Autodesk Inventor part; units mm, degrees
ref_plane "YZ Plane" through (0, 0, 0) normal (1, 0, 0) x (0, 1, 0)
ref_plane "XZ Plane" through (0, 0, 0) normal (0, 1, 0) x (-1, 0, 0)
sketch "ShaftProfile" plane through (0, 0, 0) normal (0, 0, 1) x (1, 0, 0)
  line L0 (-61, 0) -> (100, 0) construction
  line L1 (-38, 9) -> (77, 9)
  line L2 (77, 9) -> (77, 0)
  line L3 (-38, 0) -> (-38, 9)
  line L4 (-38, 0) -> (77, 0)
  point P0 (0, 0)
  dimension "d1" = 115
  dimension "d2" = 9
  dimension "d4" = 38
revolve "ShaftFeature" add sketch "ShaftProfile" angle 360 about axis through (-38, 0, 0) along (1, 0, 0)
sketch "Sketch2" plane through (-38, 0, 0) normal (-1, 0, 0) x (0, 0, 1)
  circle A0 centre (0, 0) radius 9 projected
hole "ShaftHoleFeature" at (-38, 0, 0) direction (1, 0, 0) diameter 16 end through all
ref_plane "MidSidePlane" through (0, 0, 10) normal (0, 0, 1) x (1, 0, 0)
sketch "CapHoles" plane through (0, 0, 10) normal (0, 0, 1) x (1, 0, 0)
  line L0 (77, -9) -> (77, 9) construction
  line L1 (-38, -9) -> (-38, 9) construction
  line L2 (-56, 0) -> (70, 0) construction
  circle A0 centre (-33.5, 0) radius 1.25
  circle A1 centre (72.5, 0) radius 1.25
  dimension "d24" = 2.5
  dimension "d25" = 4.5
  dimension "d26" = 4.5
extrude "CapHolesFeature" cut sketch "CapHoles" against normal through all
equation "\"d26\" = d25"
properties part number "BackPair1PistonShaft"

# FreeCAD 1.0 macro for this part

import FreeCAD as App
import Part
import Sketcher
Q = App.Units.Quantity


def add_polygon(sketch, points):
    """Adds a closed chain of lines whose ends are joined by coincident constraints."""
    first, n = sketch.GeometryCount, len(points)
    for a, b in zip(points, points[1:] + points[:1]):
        sketch.addGeometry(Part.LineSegment(App.Vector(*a, 0), App.Vector(*b, 0)), False)
    for i in range(n):
        sketch.addConstraint(Sketcher.Constraint("Coincident", first + i, 2, first + (i + 1) % n, 1))

doc = App.newDocument("Part")
params = doc.addObject("Spreadsheet::Sheet", "Params")
for row, (alias, value) in enumerate([
    ("sketch1_width", "115 mm"),
    ("sketch1_height", "9 mm"),
    ("revolution_angle", "360 deg"),
    ("sketch2_diameter", "16 mm"),
    ("hole_diameter", "16 mm"),
    ("sketch3_diameter", "2.5 mm"),
], start=1):
    params.set(f"A{row}", alias)
    params.set(f"B{row}", "=" + value)
    params.setAlias(f"B{row}", alias)

body = doc.addObject("PartDesign::Body", "Body")

# Sketch on XY plane
sketch1 = doc.addObject("Sketcher::SketchObject", "Sketch")
body.addObject(sketch1)
sketch1.AttachmentSupport = (doc.XY_Plane, [""])
sketch1.MapMode = "FlatFace"
add_polygon(sketch1, [(77, 9), (-38, 9), (-38, 0), (77, 0)])  # lines 0-3
sketch1.addConstraint([
    Sketcher.Constraint("Horizontal", 0),
    Sketcher.Constraint("Vertical", 1),
    Sketcher.Constraint("Horizontal", 2),
    Sketcher.Constraint("Vertical", 3),
    Sketcher.Constraint("PointOnObject", 1, 2, -1),
    Sketcher.Constraint("DistanceX", 0, 2, 0, 1, Q("115 mm")),
    Sketcher.Constraint("DistanceY", 1, 2, 1, 1, Q("9 mm")),
    Sketcher.Constraint("DistanceX", 0, 2, -1, 1, Q("38 mm")),
])
sketch1.setExpression("Constraints[9]", "Params.sketch1_width")
sketch1.setExpression("Constraints[10]", "Params.sketch1_height")
revolution = doc.addObject("PartDesign::Revolution", "Revolution")
body.addObject(revolution)
revolution.Profile = sketch1
revolution.ReferenceAxis = (sketch1, ["H_Axis"])
revolution.setExpression("Angle", "Params.revolution_angle")

# Sketch on YZ plane
sketch2 = doc.addObject("Sketcher::SketchObject", "Sketch001")
body.addObject(sketch2)
sketch2.AttachmentSupport = (doc.YZ_Plane, [""])
sketch2.MapMode = "FlatFace"
sketch2.AttachmentOffset = App.Placement(App.Vector(0, 0, -38), App.Rotation())
sketch2.addGeometry(Part.Circle(App.Vector(0, 0, 0), App.Vector(0, 0, 1), 8), False)
sketch2.addConstraint([
    Sketcher.Constraint("Coincident", 0, 3, -1, 1),
    Sketcher.Constraint("Diameter", 0, Q("16 mm")),
])
sketch2.setExpression("Constraints[1]", "Params.sketch2_diameter")
doc.recompute()
hole = doc.addObject("PartDesign::Hole", "Hole")
body.addObject(hole)
hole.Profile = sketch2
hole.ThreadType = "None"
hole.setExpression("Diameter", "Params.hole_diameter")
hole.DepthType = "ThroughAll"
hole.Reversed = True

# Sketch on XY plane
sketch3 = doc.addObject("Sketcher::SketchObject", "Sketch002")
body.addObject(sketch3)
sketch3.AttachmentSupport = (doc.XY_Plane, [""])
sketch3.MapMode = "FlatFace"
sketch3.AttachmentOffset = App.Placement(App.Vector(0, 0, 10), App.Rotation())
sketch3.addGeometry([
    Part.Circle(App.Vector(-33.5, 0, 0), App.Vector(0, 0, 1), 1.2),
    Part.Circle(App.Vector(72.5, 0, 0), App.Vector(0, 0, 1), 1.2),
], False)
sketch3.addConstraint([
    Sketcher.Constraint("Equal", 0, 1),
    Sketcher.Constraint("PointOnObject", 0, 3, -1),
    Sketcher.Constraint("PointOnObject", 1, 3, -1),
    Sketcher.Constraint("Diameter", 0, Q("2.5 mm")),
    Sketcher.Constraint("DistanceX", 0, 3, 1, 3, Q("106 mm")),
    Sketcher.Constraint("DistanceX", 0, 3, -1, 1, Q("33.5 mm")),
])
sketch3.setExpression("Constraints[3]", "Params.sketch3_diameter")
pocket1 = doc.addObject("PartDesign::Pocket", "Pocket")
body.addObject(pocket1)
pocket1.Profile = sketch3
pocket1.Type = "ThroughAll"

doc.recompute()
